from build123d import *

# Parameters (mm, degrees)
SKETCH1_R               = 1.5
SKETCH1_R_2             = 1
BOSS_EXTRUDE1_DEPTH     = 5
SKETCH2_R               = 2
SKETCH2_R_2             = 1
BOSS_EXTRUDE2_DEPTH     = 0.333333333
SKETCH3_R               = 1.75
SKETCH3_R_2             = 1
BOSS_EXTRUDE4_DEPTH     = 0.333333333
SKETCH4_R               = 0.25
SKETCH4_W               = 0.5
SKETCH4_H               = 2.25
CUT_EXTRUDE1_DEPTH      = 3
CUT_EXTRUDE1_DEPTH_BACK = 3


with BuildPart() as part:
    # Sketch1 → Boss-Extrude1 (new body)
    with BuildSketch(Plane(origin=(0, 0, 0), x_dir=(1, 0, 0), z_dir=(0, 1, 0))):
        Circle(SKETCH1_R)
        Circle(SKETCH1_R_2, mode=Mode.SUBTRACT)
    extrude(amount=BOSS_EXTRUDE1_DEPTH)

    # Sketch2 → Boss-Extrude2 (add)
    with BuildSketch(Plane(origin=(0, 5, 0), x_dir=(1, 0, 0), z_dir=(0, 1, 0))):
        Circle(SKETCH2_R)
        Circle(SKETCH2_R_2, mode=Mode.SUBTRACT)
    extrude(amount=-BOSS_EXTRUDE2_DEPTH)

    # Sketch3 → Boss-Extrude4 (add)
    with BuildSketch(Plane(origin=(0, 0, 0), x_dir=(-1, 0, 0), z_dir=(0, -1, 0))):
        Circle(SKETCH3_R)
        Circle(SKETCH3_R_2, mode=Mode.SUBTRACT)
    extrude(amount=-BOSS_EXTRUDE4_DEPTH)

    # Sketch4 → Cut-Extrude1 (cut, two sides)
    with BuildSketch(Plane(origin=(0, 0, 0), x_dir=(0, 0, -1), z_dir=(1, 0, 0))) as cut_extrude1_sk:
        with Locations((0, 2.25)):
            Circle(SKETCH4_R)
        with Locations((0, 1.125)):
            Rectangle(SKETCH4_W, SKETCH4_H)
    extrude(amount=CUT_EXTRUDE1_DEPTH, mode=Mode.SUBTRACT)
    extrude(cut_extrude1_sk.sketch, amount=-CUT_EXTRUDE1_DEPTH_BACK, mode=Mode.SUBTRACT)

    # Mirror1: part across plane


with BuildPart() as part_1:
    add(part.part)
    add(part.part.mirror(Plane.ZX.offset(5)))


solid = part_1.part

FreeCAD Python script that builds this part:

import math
import FreeCAD as App
import Part
import Sketcher
Q = App.Units.Quantity

doc = App.newDocument("Part")
body = doc.addObject("PartDesign::Body", "Body")

# Sketch on XZ plane
sketch1 = body.newObject("Sketcher::SketchObject", "Sketch")
sketch1.AttachmentSupport = (doc.getObject("XZ_Plane"), [""])
sketch1.MapMode = "FlatFace"
sketch1.addGeometry([
    Part.Circle(App.Vector(0, 0, 0), App.Vector(0, 0, 1), 1.5),
    Part.Circle(App.Vector(0, 0, 0), App.Vector(0, 0, 1), 1),
], False)
sketch1.addConstraint([
    Sketcher.Constraint("Coincident", 0, 3, -1, 1),
    Sketcher.Constraint("Coincident", 1, 3, -1, 1),
    Sketcher.Constraint("Diameter", 0, Q("3 mm")),
    Sketcher.Constraint("Diameter", 1, Q("2 mm")),
])
pad1 = body.newObject("PartDesign::Pad", "Pad")
pad1.Profile = sketch1
pad1.Length = 5
pad1.Reversed = True

# Sketch on XZ plane
sketch2 = body.newObject("Sketcher::SketchObject", "Sketch001")
sketch2.AttachmentSupport = (doc.getObject("XZ_Plane"), [""])
sketch2.MapMode = "FlatFace"
sketch2.AttachmentOffset = App.Placement(App.Vector(0, 0, -5), App.Rotation())
sketch2.addGeometry([
    Part.Circle(App.Vector(0, 0, 0), App.Vector(0, 0, 1), 2),
    Part.Circle(App.Vector(0, 0, 0), App.Vector(0, 0, 1), 1),
], False)
sketch2.addConstraint([
    Sketcher.Constraint("Coincident", 0, 3, -1, 1),
    Sketcher.Constraint("Coincident", 1, 3, -1, 1),
    Sketcher.Constraint("Diameter", 0, Q("4 mm")),
    Sketcher.Constraint("Diameter", 1, Q("2 mm")),
])
pad2 = body.newObject("PartDesign::Pad", "Pad001")
pad2.Profile = sketch2
pad2.Length = 0.333333

# Sketch on XZ plane
sketch3 = body.newObject("Sketcher::SketchObject", "Sketch002")
sketch3.AttachmentSupport = (doc.getObject("XZ_Plane"), [""])
sketch3.MapMode = "FlatFace"
sketch3.addGeometry([
    Part.Circle(App.Vector(0, 0, 0), App.Vector(0, 0, 1), 1.8),
    Part.Circle(App.Vector(0, 0, 0), App.Vector(0, 0, 1), 1),
], False)
sketch3.addConstraint([
    Sketcher.Constraint("Coincident", 0, 3, -1, 1),
    Sketcher.Constraint("Coincident", 1, 3, -1, 1),
    Sketcher.Constraint("Diameter", 1, Q("2 mm")),
    Sketcher.Constraint("Diameter", 0, Q("3.5 mm")),
])
pad3 = body.newObject("PartDesign::Pad", "Pad002")
pad3.Profile = sketch3
pad3.Length = 0.333333
pad3.Reversed = True

# Sketch on YZ plane
sketch4 = body.newObject("Sketcher::SketchObject", "Sketch003")
sketch4.AttachmentSupport = (doc.getObject("YZ_Plane"), [""])
sketch4.MapMode = "FlatFace"
sketch4.addGeometry([
    Part.ArcOfCircle(Part.Circle(App.Vector(2.25, 0, 0), App.Vector(0, 0, 1), 0.25), math.radians(-90), math.radians(90)),
    Part.LineSegment(App.Vector(2.25, 0.25, 0), App.Vector(0, 0.25, 0)),
    Part.LineSegment(App.Vector(0, 0.25, 0), App.Vector(0, -0.25, 0)),
    Part.LineSegment(App.Vector(0, -0.25, 0), App.Vector(2.25, -0.25, 0)),
], False)
sketch4.addConstraint([
    Sketcher.Constraint("Tangent", 0, 2, 1, 1),
    Sketcher.Constraint("Coincident", 1, 2, 2, 1),
    Sketcher.Constraint("Coincident", 2, 2, 3, 1),
    Sketcher.Constraint("Tangent", 3, 2, 0, 1),
    Sketcher.Constraint("Horizontal", 1),
    Sketcher.Constraint("Vertical", 2),
    Sketcher.Constraint("Horizontal", 3),
    Sketcher.Constraint("Symmetric", 1, 2, 2, 2, -1, 1),
    Sketcher.Constraint("Radius", 0, Q("0.25 mm")),
    Sketcher.Constraint("DistanceX", 1, 2, 1, 1, Q("2.25 mm")),
])
pocket1 = body.newObject("PartDesign::Pocket", "Pocket")
pocket1.Profile = sketch4
pocket1.Type = "ThroughAll"
pocket1.Midplane = True
body2 = doc.addObject("PartDesign::Body", "Body001")
doc.recompute()

body2.BaseFeature = body
doc.recompute()

mirroring = doc.addObject("Part::Mirroring", "Mirroring")
mirroring.Source = body
mirroring.Base = App.Vector(0, 5, 0)
mirroring.Normal = App.Vector(0, 1, 0)
body3 = doc.addObject("PartDesign::Body", "Body002")
body3.BaseFeature = mirroring
boolean = body2.newObject("PartDesign::Boolean", "Boolean")
boolean.Type = "Fuse"
boolean.addObjects([body3])
doc.recompute()
mirroring.Visibility = False

doc.recompute()
